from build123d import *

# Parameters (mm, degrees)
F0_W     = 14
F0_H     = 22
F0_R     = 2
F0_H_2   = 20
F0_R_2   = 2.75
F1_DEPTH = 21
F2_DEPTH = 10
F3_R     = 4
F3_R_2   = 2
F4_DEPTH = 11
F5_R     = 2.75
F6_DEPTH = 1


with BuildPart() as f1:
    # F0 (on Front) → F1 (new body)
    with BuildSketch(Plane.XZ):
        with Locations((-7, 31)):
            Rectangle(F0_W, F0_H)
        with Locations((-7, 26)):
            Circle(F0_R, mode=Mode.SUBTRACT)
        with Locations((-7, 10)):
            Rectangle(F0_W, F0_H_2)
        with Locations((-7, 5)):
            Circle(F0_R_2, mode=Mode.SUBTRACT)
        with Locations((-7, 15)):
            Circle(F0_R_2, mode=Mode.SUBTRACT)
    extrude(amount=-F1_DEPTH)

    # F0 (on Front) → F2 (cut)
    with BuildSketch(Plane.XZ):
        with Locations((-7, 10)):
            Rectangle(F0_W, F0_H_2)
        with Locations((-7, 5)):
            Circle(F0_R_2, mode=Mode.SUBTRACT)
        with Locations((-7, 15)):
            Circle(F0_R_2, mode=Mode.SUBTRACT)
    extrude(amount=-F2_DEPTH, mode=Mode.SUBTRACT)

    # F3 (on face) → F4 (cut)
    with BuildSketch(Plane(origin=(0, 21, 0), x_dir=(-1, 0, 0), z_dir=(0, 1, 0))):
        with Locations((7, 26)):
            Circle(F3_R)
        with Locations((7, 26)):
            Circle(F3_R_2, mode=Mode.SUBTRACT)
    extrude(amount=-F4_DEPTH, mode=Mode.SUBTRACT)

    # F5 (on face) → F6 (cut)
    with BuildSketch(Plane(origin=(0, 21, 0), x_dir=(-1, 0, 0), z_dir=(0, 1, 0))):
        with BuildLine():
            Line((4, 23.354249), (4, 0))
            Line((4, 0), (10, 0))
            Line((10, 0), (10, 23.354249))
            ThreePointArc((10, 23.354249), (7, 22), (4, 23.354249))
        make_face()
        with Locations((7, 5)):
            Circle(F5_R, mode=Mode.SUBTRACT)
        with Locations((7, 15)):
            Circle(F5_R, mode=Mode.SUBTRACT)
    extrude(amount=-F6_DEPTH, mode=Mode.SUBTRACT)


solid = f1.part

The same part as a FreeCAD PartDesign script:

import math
import FreeCAD as App
import Part
import Sketcher
from FreeCAD import Vector

doc = App.newDocument("Part")
body = doc.addObject("PartDesign::Body", "Body")

# Sketch on XZ plane
sketch1 = body.newObject("Sketcher::SketchObject", "Sketch")
sketch1.AttachmentSupport = (doc.getObject("XZ_Plane"), [""])
sketch1.MapMode = "FlatFace"
sketch1.addGeometry(Part.LineSegment(Vector(-14, 42, 0), Vector(-14, 0, 0)), False)
sketch1.addGeometry(Part.LineSegment(Vector(-14, 0, 0), Vector(0, 0, 0)), False)
sketch1.addGeometry(Part.LineSegment(Vector(0, 0, 0), Vector(0, 42, 0)), False)
sketch1.addGeometry(Part.LineSegment(Vector(0, 42, 0), Vector(-14, 42, 0)), False)
sketch1.addGeometry(Part.Circle(Vector(-7, 5, 0), Vector(0, 0, 1), 2.8), False)
sketch1.addGeometry(Part.Circle(Vector(-7, 15, 0), Vector(0, 0, 1), 2.8), False)
sketch1.addGeometry(Part.Circle(Vector(-7, 26, 0), Vector(0, 0, 1), 2), False)
sketch1.addConstraint(Sketcher.Constraint("Coincident", 0, 2, 1, 1))
sketch1.addConstraint(Sketcher.Constraint("Coincident", 1, 2, 2, 1))
sketch1.addConstraint(Sketcher.Constraint("Coincident", 2, 2, 3, 1))
sketch1.addConstraint(Sketcher.Constraint("Coincident", 3, 2, 0, 1))
sketch1.addConstraint(Sketcher.Constraint("Vertical", 0))
sketch1.addConstraint(Sketcher.Constraint("Horizontal", 1))
sketch1.addConstraint(Sketcher.Constraint("Vertical", 2))
sketch1.addConstraint(Sketcher.Constraint("Horizontal", 3))
sketch1.addConstraint(Sketcher.Constraint("Coincident", 1, 2, -1, 1))
sketch1.addConstraint(Sketcher.Constraint("Equal", 4, 5))
sketch1.addConstraint(Sketcher.Constraint("Vertical", 4, 3, 5, 3))
sketch1.addConstraint(Sketcher.Constraint("Vertical", 5, 3, 6, 3))
sketch1.addConstraint(Sketcher.Constraint("Diameter", 6, 4.0))
sketch1.addConstraint(Sketcher.Constraint("Diameter", 4, 5.5))
sketch1.addConstraint(Sketcher.Constraint("DistanceX", 1, 1, 1, 2, 14.0))
sketch1.addConstraint(Sketcher.Constraint("DistanceY", 0, 2, 0, 1, 42.0))
sketch1.addConstraint(Sketcher.Constraint("DistanceX", 4, 3, -1, 1, 7.0))
sketch1.addConstraint(Sketcher.Constraint("DistanceY", -1, 1, 4, 3, 5.0))
sketch1.addConstraint(Sketcher.Constraint("DistanceY", -1, 1, 5, 3, 15.0))
sketch1.addConstraint(Sketcher.Constraint("DistanceY", -1, 1, 6, 3, 26.0))
pad1 = body.newObject("PartDesign::Pad", "Pad")
pad1.Profile = sketch1
pad1.Length = 21
pad1.Reversed = True

# Sketch on XZ plane
sketch2 = body.newObject("Sketcher::SketchObject", "Sketch001")
sketch2.AttachmentSupport = (doc.getObject("XZ_Plane"), [""])
sketch2.MapMode = "FlatFace"
sketch2.addGeometry(Part.LineSegment(Vector(-14, 20, 0), Vector(-14, 0, 0)), False)
sketch2.addGeometry(Part.LineSegment(Vector(-14, 0, 0), Vector(0, 0, 0)), False)
sketch2.addGeometry(Part.LineSegment(Vector(0, 0, 0), Vector(0, 20, 0)), False)
sketch2.addGeometry(Part.LineSegment(Vector(0, 20, 0), Vector(-14, 20, 0)), False)
sketch2.addGeometry(Part.Circle(Vector(-7, 5, 0), Vector(0, 0, 1), 2.8), False)
sketch2.addGeometry(Part.Circle(Vector(-7, 15, 0), Vector(0, 0, 1), 2.8), False)
sketch2.addConstraint(Sketcher.Constraint("Coincident", 0, 2, 1, 1))
sketch2.addConstraint(Sketcher.Constraint("Coincident", 1, 2, 2, 1))
sketch2.addConstraint(Sketcher.Constraint("Coincident", 2, 2, 3, 1))
sketch2.addConstraint(Sketcher.Constraint("Coincident", 3, 2, 0, 1))
sketch2.addConstraint(Sketcher.Constraint("Vertical", 0))
sketch2.addConstraint(Sketcher.Constraint("Horizontal", 1))
sketch2.addConstraint(Sketcher.Constraint("Vertical", 2))
sketch2.addConstraint(Sketcher.Constraint("Horizontal", 3))
sketch2.addConstraint(Sketcher.Constraint("Coincident", 1, 2, -1, 1))
sketch2.addConstraint(Sketcher.Constraint("Equal", 4, 5))
sketch2.addConstraint(Sketcher.Constraint("Vertical", 4, 3, 5, 3))
sketch2.addConstraint(Sketcher.Constraint("Diameter", 4, 5.5))
sketch2.addConstraint(Sketcher.Constraint("DistanceX", 1, 1, 1, 2, 14.0))
sketch2.addConstraint(Sketcher.Constraint("DistanceY", 0, 2, 0, 1, 20.0))
sketch2.addConstraint(Sketcher.Constraint("DistanceX", 4, 3, -1, 1, 7.0))
sketch2.addConstraint(Sketcher.Constraint("DistanceY", -1, 1, 4, 3, 5.0))
sketch2.addConstraint(Sketcher.Constraint("DistanceY", -1, 1, 5, 3, 15.0))
pocket1 = body.newObject("PartDesign::Pocket", "Pocket")
pocket1.Profile = sketch2
pocket1.Length = 10

# Sketch on XZ plane
sketch3 = body.newObject("Sketcher::SketchObject", "Sketch002")
sketch3.AttachmentSupport = (doc.getObject("XZ_Plane"), [""])
sketch3.MapMode = "FlatFace"
sketch3.AttachmentOffset = App.Placement(Vector(0, 0, -21), App.Rotation())
sketch3.addGeometry(Part.Circle(Vector(-7, 26, 0), Vector(0, 0, 1), 4), False)
sketch3.addGeometry(Part.Circle(Vector(-7, 26, 0), Vector(0, 0, 1), 2), False)
sketch3.addConstraint(Sketcher.Constraint("Coincident", 1, 3, 0, 3))
sketch3.addConstraint(Sketcher.Constraint("Diameter", 0, 8.0))
sketch3.addConstraint(Sketcher.Constraint("Diameter", 1, 4.0))
sketch3.addConstraint(Sketcher.Constraint("DistanceX", 0, 3, -1, 1, 7.0))
sketch3.addConstraint(Sketcher.Constraint("DistanceY", -1, 1, 0, 3, 26.0))
pocket2 = body.newObject("PartDesign::Pocket", "Pocket001")
pocket2.Profile = sketch3
pocket2.Length = 11
pocket2.Reversed = True

# Sketch on XZ plane
sketch4 = body.newObject("Sketcher::SketchObject", "Sketch003")
sketch4.AttachmentSupport = (doc.getObject("XZ_Plane"), [""])
sketch4.MapMode = "FlatFace"
sketch4.AttachmentOffset = App.Placement(Vector(0, 0, -21), App.Rotation())
sketch4.addGeometry(Part.LineSegment(Vector(-4, 23.4, 0), Vector(-4, 0, 0)), False)
sketch4.addGeometry(Part.LineSegment(Vector(-4, 0, 0), Vector(-10, 0, 0)), False)
sketch4.addGeometry(Part.LineSegment(Vector(-10, 0, 0), Vector(-10, 23.4, 0)), False)
sketch4.addGeometry(Part.ArcOfCircle(Part.Circle(Vector(-7, 26, 0), Vector(0, 0, 1), 4), math.radians(-139), math.radians(-41)), False)
sketch4.addGeometry(Part.Circle(Vector(-7, 5, 0), Vector(0, 0, 1), 2.8), False)
sketch4.addGeometry(Part.Circle(Vector(-7, 15, 0), Vector(0, 0, 1), 2.8), False)
sketch4.addConstraint(Sketcher.Constraint("Coincident", 0, 2, 1, 1))
sketch4.addConstraint(Sketcher.Constraint("Coincident", 1, 2, 2, 1))
sketch4.addConstraint(Sketcher.Constraint("Coincident", 2, 2, 3, 1))
sketch4.addConstraint(Sketcher.Constraint("Coincident", 3, 2, 0, 1))
sketch4.addConstraint(Sketcher.Constraint("Vertical", 0))
sketch4.addConstraint(Sketcher.Constraint("Horizontal", 1))
sketch4.addConstraint(Sketcher.Constraint("Vertical", 2))
sketch4.addConstraint(Sketcher.Constraint("Equal", 4, 5))
sketch4.addConstraint(Sketcher.Constraint("PointOnObject", 0, 2, -1))
sketch4.addConstraint(Sketcher.Constraint("Horizontal", 2, 2, 3, 2))
sketch4.addConstraint(Sketcher.Constraint("Vertical", 3, 3, 4, 3))
sketch4.addConstraint(Sketcher.Constraint("Vertical", 4, 3, 5, 3))
sketch4.addConstraint(Sketcher.Constraint("Radius", 3, 3.999999))
sketch4.addConstraint(Sketcher.Constraint("Diameter", 4, 5.5))
sketch4.addConstraint(Sketcher.Constraint("DistanceX", 1, 2, 1, 1, 6.0))
sketch4.addConstraint(Sketcher.Constraint("DistanceX", 3, 3, -1, 1, 7.0))
sketch4.addConstraint(Sketcher.Constraint("DistanceY", -1, 1, 3, 3, 25.999999))
sketch4.addConstraint(Sketcher.Constraint("DistanceY", -1, 1, 4, 3, 5.0))
sketch4.addConstraint(Sketcher.Constraint("DistanceY", -1, 1, 5, 3, 15.0))
pocket3 = body.newObject("PartDesign::Pocket", "Pocket002")
pocket3.Profile = sketch4
pocket3.Length = 1
pocket3.Reversed = True

doc.recompute()
